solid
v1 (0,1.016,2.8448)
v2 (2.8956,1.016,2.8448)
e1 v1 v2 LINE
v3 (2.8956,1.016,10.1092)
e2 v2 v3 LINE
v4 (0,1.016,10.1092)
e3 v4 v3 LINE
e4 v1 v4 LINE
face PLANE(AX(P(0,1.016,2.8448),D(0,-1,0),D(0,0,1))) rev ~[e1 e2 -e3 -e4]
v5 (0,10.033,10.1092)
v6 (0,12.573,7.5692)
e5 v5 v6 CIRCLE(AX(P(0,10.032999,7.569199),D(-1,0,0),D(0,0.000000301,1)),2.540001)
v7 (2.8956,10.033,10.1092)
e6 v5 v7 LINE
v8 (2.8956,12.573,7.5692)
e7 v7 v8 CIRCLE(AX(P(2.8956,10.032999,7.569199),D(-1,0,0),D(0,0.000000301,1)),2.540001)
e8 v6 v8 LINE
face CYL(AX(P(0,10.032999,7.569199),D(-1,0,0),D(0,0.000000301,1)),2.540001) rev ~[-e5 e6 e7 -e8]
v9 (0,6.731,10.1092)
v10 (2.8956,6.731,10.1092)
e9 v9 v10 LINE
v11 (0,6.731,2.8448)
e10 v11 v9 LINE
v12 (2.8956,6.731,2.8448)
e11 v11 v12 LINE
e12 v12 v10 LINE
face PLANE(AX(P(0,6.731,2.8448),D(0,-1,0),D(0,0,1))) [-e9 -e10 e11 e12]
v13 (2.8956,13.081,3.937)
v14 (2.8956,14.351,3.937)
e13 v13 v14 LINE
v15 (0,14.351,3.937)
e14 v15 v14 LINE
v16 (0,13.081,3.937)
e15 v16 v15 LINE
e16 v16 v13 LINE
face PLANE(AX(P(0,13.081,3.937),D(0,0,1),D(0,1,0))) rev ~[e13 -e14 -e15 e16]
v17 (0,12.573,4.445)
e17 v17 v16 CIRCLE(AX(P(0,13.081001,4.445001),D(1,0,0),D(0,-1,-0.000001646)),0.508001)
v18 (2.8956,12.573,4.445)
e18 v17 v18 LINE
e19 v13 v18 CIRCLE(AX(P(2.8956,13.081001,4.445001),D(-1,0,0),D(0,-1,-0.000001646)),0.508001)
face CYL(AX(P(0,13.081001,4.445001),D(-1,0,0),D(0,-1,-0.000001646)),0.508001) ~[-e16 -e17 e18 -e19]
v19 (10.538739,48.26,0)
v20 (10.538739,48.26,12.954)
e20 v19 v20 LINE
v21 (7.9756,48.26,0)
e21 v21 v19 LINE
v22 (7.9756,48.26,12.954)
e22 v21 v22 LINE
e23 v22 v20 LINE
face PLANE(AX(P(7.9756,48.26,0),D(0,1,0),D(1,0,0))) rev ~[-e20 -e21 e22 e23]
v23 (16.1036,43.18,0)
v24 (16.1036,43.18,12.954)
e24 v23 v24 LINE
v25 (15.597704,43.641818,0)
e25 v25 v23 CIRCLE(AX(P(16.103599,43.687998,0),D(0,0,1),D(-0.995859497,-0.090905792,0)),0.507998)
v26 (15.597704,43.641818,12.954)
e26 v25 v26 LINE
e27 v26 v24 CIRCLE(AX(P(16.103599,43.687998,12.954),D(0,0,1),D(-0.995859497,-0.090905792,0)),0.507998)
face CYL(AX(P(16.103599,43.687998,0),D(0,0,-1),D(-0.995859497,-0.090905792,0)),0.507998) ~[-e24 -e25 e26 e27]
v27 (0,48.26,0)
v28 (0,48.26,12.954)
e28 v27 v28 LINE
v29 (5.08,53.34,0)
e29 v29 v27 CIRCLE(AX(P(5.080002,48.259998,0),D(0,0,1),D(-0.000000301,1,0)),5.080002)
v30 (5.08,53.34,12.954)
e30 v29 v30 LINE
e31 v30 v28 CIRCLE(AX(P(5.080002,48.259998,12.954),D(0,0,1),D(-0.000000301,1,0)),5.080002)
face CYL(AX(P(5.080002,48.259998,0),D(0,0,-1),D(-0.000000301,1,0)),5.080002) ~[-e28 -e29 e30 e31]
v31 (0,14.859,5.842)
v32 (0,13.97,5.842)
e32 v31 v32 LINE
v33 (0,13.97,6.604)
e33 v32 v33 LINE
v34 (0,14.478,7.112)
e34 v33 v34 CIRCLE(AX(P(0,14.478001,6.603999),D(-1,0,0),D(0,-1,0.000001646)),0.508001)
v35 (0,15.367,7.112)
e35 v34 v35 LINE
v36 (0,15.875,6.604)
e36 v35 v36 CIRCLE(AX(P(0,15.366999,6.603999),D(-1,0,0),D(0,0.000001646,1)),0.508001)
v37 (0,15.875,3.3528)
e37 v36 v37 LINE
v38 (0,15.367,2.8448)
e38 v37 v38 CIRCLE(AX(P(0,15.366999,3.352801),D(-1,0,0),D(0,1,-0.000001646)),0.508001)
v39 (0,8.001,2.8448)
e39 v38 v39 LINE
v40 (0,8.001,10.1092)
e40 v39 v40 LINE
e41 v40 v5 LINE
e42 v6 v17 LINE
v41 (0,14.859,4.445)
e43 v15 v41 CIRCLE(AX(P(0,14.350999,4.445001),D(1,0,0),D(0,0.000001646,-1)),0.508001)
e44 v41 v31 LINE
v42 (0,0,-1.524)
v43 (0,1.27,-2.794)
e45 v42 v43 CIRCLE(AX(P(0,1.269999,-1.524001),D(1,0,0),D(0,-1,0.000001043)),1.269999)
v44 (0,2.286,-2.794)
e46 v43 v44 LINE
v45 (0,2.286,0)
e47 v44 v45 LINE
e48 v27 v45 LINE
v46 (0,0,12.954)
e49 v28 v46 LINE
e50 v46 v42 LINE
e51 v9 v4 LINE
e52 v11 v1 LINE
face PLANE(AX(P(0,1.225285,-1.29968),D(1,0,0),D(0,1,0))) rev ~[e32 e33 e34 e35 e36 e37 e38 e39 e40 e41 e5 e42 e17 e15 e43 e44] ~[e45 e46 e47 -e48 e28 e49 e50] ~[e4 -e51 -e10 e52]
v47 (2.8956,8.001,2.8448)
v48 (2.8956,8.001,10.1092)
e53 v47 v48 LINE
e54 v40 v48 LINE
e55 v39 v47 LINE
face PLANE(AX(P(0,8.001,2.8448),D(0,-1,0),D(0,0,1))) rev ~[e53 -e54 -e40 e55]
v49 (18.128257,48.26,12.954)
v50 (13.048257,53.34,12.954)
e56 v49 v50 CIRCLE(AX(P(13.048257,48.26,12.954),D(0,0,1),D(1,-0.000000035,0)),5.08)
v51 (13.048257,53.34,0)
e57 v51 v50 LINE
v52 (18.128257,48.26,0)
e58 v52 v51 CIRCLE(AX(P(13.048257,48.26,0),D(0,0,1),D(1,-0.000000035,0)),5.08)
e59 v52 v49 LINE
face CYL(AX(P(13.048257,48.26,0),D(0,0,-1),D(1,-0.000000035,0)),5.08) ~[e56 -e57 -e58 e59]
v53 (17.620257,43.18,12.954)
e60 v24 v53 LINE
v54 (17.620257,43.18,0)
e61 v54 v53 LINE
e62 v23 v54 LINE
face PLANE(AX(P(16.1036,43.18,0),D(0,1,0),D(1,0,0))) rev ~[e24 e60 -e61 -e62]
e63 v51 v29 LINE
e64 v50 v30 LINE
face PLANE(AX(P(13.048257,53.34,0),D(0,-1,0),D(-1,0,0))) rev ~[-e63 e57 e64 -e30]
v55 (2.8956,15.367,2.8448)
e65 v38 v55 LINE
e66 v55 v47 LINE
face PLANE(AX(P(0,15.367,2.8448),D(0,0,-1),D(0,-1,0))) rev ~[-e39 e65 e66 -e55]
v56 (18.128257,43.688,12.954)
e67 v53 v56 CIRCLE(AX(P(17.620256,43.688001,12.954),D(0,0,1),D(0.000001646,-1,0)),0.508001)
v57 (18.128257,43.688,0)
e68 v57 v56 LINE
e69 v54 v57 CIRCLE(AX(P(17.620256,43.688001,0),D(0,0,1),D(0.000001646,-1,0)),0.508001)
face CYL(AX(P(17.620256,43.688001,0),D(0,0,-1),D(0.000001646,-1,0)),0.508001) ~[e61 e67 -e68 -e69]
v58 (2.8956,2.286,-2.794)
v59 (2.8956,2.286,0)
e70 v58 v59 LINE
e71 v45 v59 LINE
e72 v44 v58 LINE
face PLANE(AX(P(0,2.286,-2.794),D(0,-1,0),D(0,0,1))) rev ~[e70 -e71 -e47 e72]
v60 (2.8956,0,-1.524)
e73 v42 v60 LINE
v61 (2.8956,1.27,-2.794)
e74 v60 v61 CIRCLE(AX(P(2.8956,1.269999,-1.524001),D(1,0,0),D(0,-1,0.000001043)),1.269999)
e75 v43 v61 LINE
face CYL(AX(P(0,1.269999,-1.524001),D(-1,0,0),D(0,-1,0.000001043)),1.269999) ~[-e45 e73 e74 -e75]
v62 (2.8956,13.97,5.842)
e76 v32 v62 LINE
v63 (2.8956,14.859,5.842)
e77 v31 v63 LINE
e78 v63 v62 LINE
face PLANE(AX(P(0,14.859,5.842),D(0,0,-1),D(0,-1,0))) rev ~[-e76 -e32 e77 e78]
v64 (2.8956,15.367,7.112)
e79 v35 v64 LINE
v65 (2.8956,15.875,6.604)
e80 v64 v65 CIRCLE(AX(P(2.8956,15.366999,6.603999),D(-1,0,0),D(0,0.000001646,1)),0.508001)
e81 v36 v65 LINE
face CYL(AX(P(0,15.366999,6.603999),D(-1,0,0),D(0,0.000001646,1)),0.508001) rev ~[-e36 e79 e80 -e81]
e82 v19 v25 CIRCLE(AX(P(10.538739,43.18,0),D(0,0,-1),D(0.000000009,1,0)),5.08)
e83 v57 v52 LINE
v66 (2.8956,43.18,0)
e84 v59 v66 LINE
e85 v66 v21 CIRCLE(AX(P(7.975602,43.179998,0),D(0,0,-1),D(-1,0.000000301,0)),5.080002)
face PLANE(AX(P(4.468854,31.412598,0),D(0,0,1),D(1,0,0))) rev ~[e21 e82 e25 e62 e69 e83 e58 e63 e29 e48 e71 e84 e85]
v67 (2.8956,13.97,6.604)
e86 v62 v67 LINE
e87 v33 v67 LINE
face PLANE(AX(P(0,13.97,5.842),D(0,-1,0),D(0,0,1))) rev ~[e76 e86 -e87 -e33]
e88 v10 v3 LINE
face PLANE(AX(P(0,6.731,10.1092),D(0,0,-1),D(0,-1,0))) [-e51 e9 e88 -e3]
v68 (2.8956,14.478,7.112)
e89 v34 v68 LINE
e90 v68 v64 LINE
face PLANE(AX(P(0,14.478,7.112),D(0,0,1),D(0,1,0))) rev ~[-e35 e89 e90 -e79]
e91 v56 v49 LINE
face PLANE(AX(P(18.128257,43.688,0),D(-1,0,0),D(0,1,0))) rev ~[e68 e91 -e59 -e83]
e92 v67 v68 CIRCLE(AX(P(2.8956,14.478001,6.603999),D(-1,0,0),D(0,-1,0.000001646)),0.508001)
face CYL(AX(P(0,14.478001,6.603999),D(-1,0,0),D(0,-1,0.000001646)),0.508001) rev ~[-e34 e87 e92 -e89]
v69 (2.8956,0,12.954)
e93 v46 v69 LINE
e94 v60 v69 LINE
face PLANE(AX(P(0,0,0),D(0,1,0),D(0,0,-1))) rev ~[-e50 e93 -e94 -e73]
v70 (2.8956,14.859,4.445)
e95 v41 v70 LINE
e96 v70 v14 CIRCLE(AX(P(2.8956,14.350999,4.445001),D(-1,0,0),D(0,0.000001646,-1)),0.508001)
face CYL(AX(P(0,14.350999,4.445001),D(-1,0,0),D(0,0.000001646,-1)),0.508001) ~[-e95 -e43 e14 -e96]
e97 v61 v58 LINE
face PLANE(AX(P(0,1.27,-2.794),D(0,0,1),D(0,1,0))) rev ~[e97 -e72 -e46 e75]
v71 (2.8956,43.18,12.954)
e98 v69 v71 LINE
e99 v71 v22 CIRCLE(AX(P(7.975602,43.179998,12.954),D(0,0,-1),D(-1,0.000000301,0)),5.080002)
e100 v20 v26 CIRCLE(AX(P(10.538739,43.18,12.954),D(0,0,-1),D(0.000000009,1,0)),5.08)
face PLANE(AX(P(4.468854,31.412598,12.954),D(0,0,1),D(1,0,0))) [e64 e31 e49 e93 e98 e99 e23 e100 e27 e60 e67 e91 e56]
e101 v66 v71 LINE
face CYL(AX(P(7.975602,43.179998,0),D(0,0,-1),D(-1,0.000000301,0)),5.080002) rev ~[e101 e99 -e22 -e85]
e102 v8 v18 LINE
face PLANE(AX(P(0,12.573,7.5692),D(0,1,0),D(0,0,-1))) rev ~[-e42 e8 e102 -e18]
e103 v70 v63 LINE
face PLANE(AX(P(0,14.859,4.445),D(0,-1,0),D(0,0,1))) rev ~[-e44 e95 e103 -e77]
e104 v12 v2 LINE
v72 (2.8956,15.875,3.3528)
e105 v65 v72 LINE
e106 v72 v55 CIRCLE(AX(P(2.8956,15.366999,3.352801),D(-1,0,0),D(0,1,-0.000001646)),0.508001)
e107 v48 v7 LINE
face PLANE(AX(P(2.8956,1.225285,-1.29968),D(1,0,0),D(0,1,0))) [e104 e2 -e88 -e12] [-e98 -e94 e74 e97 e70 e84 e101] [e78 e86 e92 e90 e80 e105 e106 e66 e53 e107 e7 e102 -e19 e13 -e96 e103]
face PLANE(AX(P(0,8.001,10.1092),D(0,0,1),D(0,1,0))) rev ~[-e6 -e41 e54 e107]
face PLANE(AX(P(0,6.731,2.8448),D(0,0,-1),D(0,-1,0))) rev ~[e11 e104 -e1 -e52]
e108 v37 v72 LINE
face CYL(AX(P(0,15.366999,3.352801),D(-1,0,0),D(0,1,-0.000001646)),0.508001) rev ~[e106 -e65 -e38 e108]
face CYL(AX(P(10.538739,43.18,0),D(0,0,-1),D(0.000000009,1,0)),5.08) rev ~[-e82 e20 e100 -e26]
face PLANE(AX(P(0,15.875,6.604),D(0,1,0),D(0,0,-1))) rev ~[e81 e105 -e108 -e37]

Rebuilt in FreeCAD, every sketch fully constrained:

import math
import FreeCAD as App
import Part
import Sketcher
from FreeCAD import Vector
Q = App.Units.Quantity

doc = App.newDocument("Part")
body = doc.addObject("PartDesign::Body", "Body")

sketch1 = body.newObject("Sketcher::SketchObject", "Sketch")
sketch1.AttachmentSupport = (doc.getObject("XY_Plane"), [""])
sketch1.MapMode = "FlatFace"
sketch1.addGeometry(Part.LineSegment(Vector(0, 48.3, 0), Vector(0, 0, 0)), False)
sketch1.addGeometry(Part.LineSegment(Vector(0, 0, 0), Vector(2.9, 0, 0)), False)
sketch1.addGeometry(Part.LineSegment(Vector(2.9, 0, 0), Vector(2.9, 43.2, 0)), False)
sketch1.addGeometry(Part.ArcOfCircle(Part.Circle(Vector(8, 43.2, 0), Vector(0, 0, 1), 5.1), math.radians(90), math.radians(180)), False)
sketch1.addGeometry(Part.LineSegment(Vector(8, 48.3, 0), Vector(10.5, 48.3, 0)), False)
sketch1.addGeometry(Part.ArcOfCircle(Part.Circle(Vector(10.5, 43.2, 0), Vector(0, 0, 1), 5.1), math.radians(5), math.radians(90)), False)
sketch1.addGeometry(Part.ArcOfCircle(Part.Circle(Vector(16.1, 43.7, 0), Vector(0, 0, 1), 0.5), math.radians(-175), math.radians(-90)), False)
sketch1.addGeometry(Part.LineSegment(Vector(16.1, 43.2, 0), Vector(17.6, 43.2, 0)), False)
sketch1.addGeometry(Part.ArcOfCircle(Part.Circle(Vector(17.6, 43.7, 0), Vector(0, 0, 1), 0.5), math.radians(-90), math.radians(0)), False)
sketch1.addGeometry(Part.LineSegment(Vector(18.1, 43.7, 0), Vector(18.1, 48.3, 0)), False)
sketch1.addGeometry(Part.ArcOfCircle(Part.Circle(Vector(13, 48.3, 0), Vector(0, 0, 1), 5.1), math.radians(0), math.radians(90)), False)
sketch1.addGeometry(Part.LineSegment(Vector(13, 53.3, 0), Vector(5.1, 53.3, 0)), False)
sketch1.addGeometry(Part.ArcOfCircle(Part.Circle(Vector(5.1, 48.3, 0), Vector(0, 0, 1), 5.1), math.radians(90), math.radians(180)), False)
sketch1.addConstraint(Sketcher.Constraint("Coincident", 0, 2, 1, 1))
sketch1.addConstraint(Sketcher.Constraint("Coincident", 1, 2, 2, 1))
sketch1.addConstraint(Sketcher.Constraint("Tangent", 2, 2, 3, 2))
sketch1.addConstraint(Sketcher.Constraint("Tangent", 3, 1, 4, 1))
sketch1.addConstraint(Sketcher.Constraint("Tangent", 4, 2, 5, 2))
sketch1.addConstraint(Sketcher.Constraint("Coincident", 5, 1, 6, 1))
sketch1.addConstraint(Sketcher.Constraint("Coincident", 6, 2, 7, 1))
sketch1.addConstraint(Sketcher.Constraint("Tangent", 7, 2, 8, 1))
sketch1.addConstraint(Sketcher.Constraint("Tangent", 8, 2, 9, 1))
sketch1.addConstraint(Sketcher.Constraint("Tangent", 9, 2, 10, 1))
sketch1.addConstraint(Sketcher.Constraint("Tangent", 10, 2, 11, 1))
sketch1.addConstraint(Sketcher.Constraint("Tangent", 11, 2, 12, 1))
sketch1.addConstraint(Sketcher.Constraint("Tangent", 12, 2, 0, 1))
sketch1.addConstraint(Sketcher.Constraint("Vertical", 0))
sketch1.addConstraint(Sketcher.Constraint("Horizontal", 1))
sketch1.addConstraint(Sketcher.Constraint("Vertical", 2))
sketch1.addConstraint(Sketcher.Constraint("Horizontal", 4))
sketch1.addConstraint(Sketcher.Constraint("Horizontal", 7))
sketch1.addConstraint(Sketcher.Constraint("Vertical", 9))
sketch1.addConstraint(Sketcher.Constraint("Horizontal", 11))
sketch1.addConstraint(Sketcher.Constraint("Coincident", 0, 2, -1, 1))
sketch1.addConstraint(Sketcher.Constraint("Equal", 3, 5))
sketch1.addConstraint(Sketcher.Constraint("Equal", 5, 10))
sketch1.addConstraint(Sketcher.Constraint("Equal", 10, 12))
sketch1.addConstraint(Sketcher.Constraint("Horizontal", 12, 3, 3, 1))
sketch1.addConstraint(Sketcher.Constraint("Horizontal", 2, 2, 6, 2))
sketch1.addConstraint(Sketcher.Constraint("Radius", 3, Q("0.2000001 in")))
sketch1.addConstraint(Sketcher.Constraint("Radius", 6, Q("0.0199999 in")))
sketch1.addConstraint(Sketcher.Constraint("Radius", 8, Q("0.02 in")))
sketch1.addConstraint(Sketcher.Constraint("DistanceY", 0, 2, 0, 1, Q("1.9 in")))
sketch1.addConstraint(Sketcher.Constraint("DistanceX", 1, 1, 1, 2, Q("0.114 in")))
sketch1.addConstraint(Sketcher.Constraint("DistanceX", 3, 3, 6, 3, Q("0.3199999 in")))
sketch1.addConstraint(Sketcher.Constraint("DistanceX", -1, 1, 6, 2, Q("0.634 in")))
sketch1.addConstraint(Sketcher.Constraint("DistanceX", 5, 3, 8, 3, Q("0.2787999 in")))
sketch1.addConstraint(Sketcher.Constraint("DistanceY", 5, 1, 6, 3, Q("0.04618 mm")))
pad1 = body.newObject("PartDesign::Pad", "Pad")
pad1.Profile = sketch1
pad1.Length = Q("0.51 in")

sketch2 = body.newObject("Sketcher::SketchObject", "Sketch001")
sketch2.AttachmentSupport = (doc.getObject("YZ_Plane"), [""])
sketch2.MapMode = "FlatFace"
sketch2.addGeometry(Part.ArcOfCircle(Part.Circle(Vector(15.4, 3.4, 0), Vector(0, 0, 1), 0.5), math.radians(-90), math.radians(0)), False)
sketch2.addGeometry(Part.LineSegment(Vector(15.4, 2.8, 0), Vector(8, 2.8, 0)), False)
sketch2.addGeometry(Part.LineSegment(Vector(8, 2.8, 0), Vector(8, 10.1, 0)), False)
sketch2.addGeometry(Part.LineSegment(Vector(8, 10.1, 0), Vector(10, 10.1, 0)), False)
sketch2.addGeometry(Part.ArcOfCircle(Part.Circle(Vector(10, 7.6, 0), Vector(0, 0, 1), 2.5), math.radians(0), math.radians(90)), False)
sketch2.addGeometry(Part.LineSegment(Vector(12.6, 7.6, 0), Vector(12.6, 4.4, 0)), False)
sketch2.addGeometry(Part.ArcOfCircle(Part.Circle(Vector(13.1, 4.4, 0), Vector(0, 0, 1), 0.5), math.radians(-180), math.radians(-90)), False)
sketch2.addGeometry(Part.LineSegment(Vector(13.1, 3.9, 0), Vector(14.4, 3.9, 0)), False)
sketch2.addGeometry(Part.ArcOfCircle(Part.Circle(Vector(14.4, 4.4, 0), Vector(0, 0, 1), 0.5), math.radians(-90), math.radians(0)), False)
sketch2.addGeometry(Part.LineSegment(Vector(14.9, 4.4, 0), Vector(14.9, 5.8, 0)), False)
sketch2.addGeometry(Part.LineSegment(Vector(14.9, 5.8, 0), Vector(14, 5.8, 0)), False)
sketch2.addGeometry(Part.LineSegment(Vector(14, 5.8, 0), Vector(14, 6.6, 0)), False)
sketch2.addGeometry(Part.ArcOfCircle(Part.Circle(Vector(14.5, 6.6, 0), Vector(0, 0, 1), 0.5), math.radians(90), math.radians(180)), False)
sketch2.addGeometry(Part.LineSegment(Vector(14.5, 7.1, 0), Vector(15.4, 7.1, 0)), False)
sketch2.addGeometry(Part.ArcOfCircle(Part.Circle(Vector(15.4, 6.6, 0), Vector(0, 0, 1), 0.5), math.radians(0), math.radians(90)), False)
sketch2.addGeometry(Part.LineSegment(Vector(15.9, 6.6, 0), Vector(15.9, 3.4, 0)), False)
sketch2.addGeometry(Part.LineSegment(Vector(6.7, 10.1, 0), Vector(6.7, 2.8, 0)), False)
sketch2.addGeometry(Part.LineSegment(Vector(6.7, 2.8, 0), Vector(1, 2.8, 0)), False)
sketch2.addGeometry(Part.LineSegment(Vector(1, 2.8, 0), Vector(1, 10.1, 0)), False)
sketch2.addGeometry(Part.LineSegment(Vector(1, 10.1, 0), Vector(6.7, 10.1, 0)), False)
sketch2.addConstraint(Sketcher.Constraint("Tangent", 0, 1, 1, 1))
sketch2.addConstraint(Sketcher.Constraint("Coincident", 1, 2, 2, 1))
sketch2.addConstraint(Sketcher.Constraint("Coincident", 2, 2, 3, 1))
sketch2.addConstraint(Sketcher.Constraint("Tangent", 3, 2, 4, 2))
sketch2.addConstraint(Sketcher.Constraint("Tangent", 4, 1, 5, 1))
sketch2.addConstraint(Sketcher.Constraint("Tangent", 5, 2, 6, 1))
sketch2.addConstraint(Sketcher.Constraint("Tangent", 6, 2, 7, 1))
sketch2.addConstraint(Sketcher.Constraint("Tangent", 7, 2, 8, 1))
sketch2.addConstraint(Sketcher.Constraint("Tangent", 8, 2, 9, 1))
sketch2.addConstraint(Sketcher.Constraint("Coincident", 9, 2, 10, 1))
sketch2.addConstraint(Sketcher.Constraint("Coincident", 10, 2, 11, 1))
sketch2.addConstraint(Sketcher.Constraint("Tangent", 11, 2, 12, 2))
sketch2.addConstraint(Sketcher.Constraint("Tangent", 12, 1, 13, 1))
sketch2.addConstraint(Sketcher.Constraint("Tangent", 13, 2, 14, 2))
sketch2.addConstraint(Sketcher.Constraint("Tangent", 14, 1, 15, 1))
sketch2.addConstraint(Sketcher.Constraint("Tangent", 15, 2, 0, 2))
sketch2.addConstraint(Sketcher.Constraint("Coincident", 16, 2, 17, 1))
sketch2.addConstraint(Sketcher.Constraint("Coincident", 17, 2, 18, 1))
sketch2.addConstraint(Sketcher.Constraint("Coincident", 18, 2, 19, 1))
sketch2.addConstraint(Sketcher.Constraint("Coincident", 19, 2, 16, 1))
sketch2.addConstraint(Sketcher.Constraint("Horizontal", 1))
sketch2.addConstraint(Sketcher.Constraint("Vertical", 2))
sketch2.addConstraint(Sketcher.Constraint("Horizontal", 3))
sketch2.addConstraint(Sketcher.Constraint("Vertical", 5))
sketch2.addConstraint(Sketcher.Constraint("Horizontal", 7))
sketch2.addConstraint(Sketcher.Constraint("Vertical", 9))
sketch2.addConstraint(Sketcher.Constraint("Horizontal", 10))
sketch2.addConstraint(Sketcher.Constraint("Vertical", 11))
sketch2.addConstraint(Sketcher.Constraint("Horizontal", 13))
sketch2.addConstraint(Sketcher.Constraint("Vertical", 15))
sketch2.addConstraint(Sketcher.Constraint("Vertical", 16))
sketch2.addConstraint(Sketcher.Constraint("Horizontal", 17))
sketch2.addConstraint(Sketcher.Constraint("Vertical", 18))
sketch2.addConstraint(Sketcher.Constraint("Horizontal", 19))
sketch2.addConstraint(Sketcher.Constraint("Equal", 0, 6))
sketch2.addConstraint(Sketcher.Constraint("Equal", 6, 8))
sketch2.addConstraint(Sketcher.Constraint("Equal", 8, 12))
sketch2.addConstraint(Sketcher.Constraint("Equal", 12, 14))
sketch2.addConstraint(Sketcher.Constraint("Horizontal", 1, 2, 16, 2))
sketch2.addConstraint(Sketcher.Constraint("Horizontal", 3, 2, 18, 2))
sketch2.addConstraint(Sketcher.Constraint("Equal", 10, 13))
sketch2.addConstraint(Sketcher.Constraint("Radius", 4, Q("0.1 in")))
sketch2.addConstraint(Sketcher.Constraint("Radius", 0, Q("0.02 in")))
sketch2.addConstraint(Sketcher.Constraint("DistanceX", 1, 2, 1, 1, Q("0.29 in")))
sketch2.addConstraint(Sketcher.Constraint("DistanceX", 3, 1, 3, 2, Q("0.08 in")))
sketch2.addConstraint(Sketcher.Constraint("DistanceY", 11, 1, 11, 2, Q("0.03 in")))
sketch2.addConstraint(Sketcher.Constraint("DistanceX", 10, 2, 10, 1, Q("0.035 in")))
sketch2.addConstraint(Sketcher.Constraint("DistanceX", 17, 2, 17, 1, Q("0.225 in")))
sketch2.addConstraint(Sketcher.Constraint("DistanceY", 2, 1, 2, 2, Q("0.286 in")))
sketch2.addConstraint(Sketcher.Constraint("DistanceY", 5, 2, 5, 1, Q("0.123 in")))
sketch2.addConstraint(Sketcher.Constraint("DistanceY", 9, 1, 9, 2, Q("0.055 in")))
sketch2.addConstraint(Sketcher.Constraint("DistanceX", -1, 1, 12, 3, Q("0.57 in")))
sketch2.addConstraint(Sketcher.Constraint("DistanceY", -1, 1, 12, 3, Q("0.26 in")))
sketch2.addConstraint(Sketcher.Constraint("DistanceX", -1, 1, 17, 2, Q("0.04 in")))
pocket1 = body.newObject("PartDesign::Pocket", "Pocket")
pocket1.Profile = sketch2
pocket1.Type = "ThroughAll"
pocket1.Reversed = True

sketch3 = body.newObject("Sketcher::SketchObject", "Sketch002")
sketch3.AttachmentSupport = (doc.getObject("YZ_Plane"), [""])
sketch3.MapMode = "FlatFace"
sketch3.addGeometry(Part.LineSegment(Vector(2.3, 0, 0), Vector(0, 0, 0)), False)
sketch3.addGeometry(Part.LineSegment(Vector(0, 0, 0), Vector(0, -1.5, 0)), False)
sketch3.addGeometry(Part.ArcOfCircle(Part.Circle(Vector(1.3, -1.5, 0), Vector(0, 0, 1), 1.3), math.radians(180), math.radians(270)), False)
sketch3.addGeometry(Part.LineSegment(Vector(1.3, -2.8, 0), Vector(2.3, -2.8, 0)), False)
sketch3.addGeometry(Part.LineSegment(Vector(2.3, -2.8, 0), Vector(2.3, 0, 0)), False)
sketch3.addConstraint(Sketcher.Constraint("Coincident", 0, 2, 1, 1))
sketch3.addConstraint(Sketcher.Constraint("Tangent", 1, 2, 2, 1))
sketch3.addConstraint(Sketcher.Constraint("Tangent", 2, 2, 3, 1))
sketch3.addConstraint(Sketcher.Constraint("Coincident", 3, 2, 4, 1))
sketch3.addConstraint(Sketcher.Constraint("Coincident", 4, 2, 0, 1))
sketch3.addConstraint(Sketcher.Constraint("Horizontal", 0))
sketch3.addConstraint(Sketcher.Constraint("Vertical", 1))
sketch3.addConstraint(Sketcher.Constraint("Horizontal", 3))
sketch3.addConstraint(Sketcher.Constraint("Vertical", 4))
sketch3.addConstraint(Sketcher.Constraint("Coincident", 0, 2, -1, 1))
sketch3.addConstraint(Sketcher.Constraint("Radius", 2, Q("0.0499999 in")))
sketch3.addConstraint(Sketcher.Constraint("DistanceX", 0, 2, 0, 1, Q("0.09 in")))
sketch3.addConstraint(Sketcher.Constraint("DistanceY", 1, 2, 1, 1, Q("0.06 in")))
pad2 = body.newObject("PartDesign::Pad", "Pad001")
pad2.Profile = sketch3
pad2.Length = Q("0.114 in")

doc.recompute()
